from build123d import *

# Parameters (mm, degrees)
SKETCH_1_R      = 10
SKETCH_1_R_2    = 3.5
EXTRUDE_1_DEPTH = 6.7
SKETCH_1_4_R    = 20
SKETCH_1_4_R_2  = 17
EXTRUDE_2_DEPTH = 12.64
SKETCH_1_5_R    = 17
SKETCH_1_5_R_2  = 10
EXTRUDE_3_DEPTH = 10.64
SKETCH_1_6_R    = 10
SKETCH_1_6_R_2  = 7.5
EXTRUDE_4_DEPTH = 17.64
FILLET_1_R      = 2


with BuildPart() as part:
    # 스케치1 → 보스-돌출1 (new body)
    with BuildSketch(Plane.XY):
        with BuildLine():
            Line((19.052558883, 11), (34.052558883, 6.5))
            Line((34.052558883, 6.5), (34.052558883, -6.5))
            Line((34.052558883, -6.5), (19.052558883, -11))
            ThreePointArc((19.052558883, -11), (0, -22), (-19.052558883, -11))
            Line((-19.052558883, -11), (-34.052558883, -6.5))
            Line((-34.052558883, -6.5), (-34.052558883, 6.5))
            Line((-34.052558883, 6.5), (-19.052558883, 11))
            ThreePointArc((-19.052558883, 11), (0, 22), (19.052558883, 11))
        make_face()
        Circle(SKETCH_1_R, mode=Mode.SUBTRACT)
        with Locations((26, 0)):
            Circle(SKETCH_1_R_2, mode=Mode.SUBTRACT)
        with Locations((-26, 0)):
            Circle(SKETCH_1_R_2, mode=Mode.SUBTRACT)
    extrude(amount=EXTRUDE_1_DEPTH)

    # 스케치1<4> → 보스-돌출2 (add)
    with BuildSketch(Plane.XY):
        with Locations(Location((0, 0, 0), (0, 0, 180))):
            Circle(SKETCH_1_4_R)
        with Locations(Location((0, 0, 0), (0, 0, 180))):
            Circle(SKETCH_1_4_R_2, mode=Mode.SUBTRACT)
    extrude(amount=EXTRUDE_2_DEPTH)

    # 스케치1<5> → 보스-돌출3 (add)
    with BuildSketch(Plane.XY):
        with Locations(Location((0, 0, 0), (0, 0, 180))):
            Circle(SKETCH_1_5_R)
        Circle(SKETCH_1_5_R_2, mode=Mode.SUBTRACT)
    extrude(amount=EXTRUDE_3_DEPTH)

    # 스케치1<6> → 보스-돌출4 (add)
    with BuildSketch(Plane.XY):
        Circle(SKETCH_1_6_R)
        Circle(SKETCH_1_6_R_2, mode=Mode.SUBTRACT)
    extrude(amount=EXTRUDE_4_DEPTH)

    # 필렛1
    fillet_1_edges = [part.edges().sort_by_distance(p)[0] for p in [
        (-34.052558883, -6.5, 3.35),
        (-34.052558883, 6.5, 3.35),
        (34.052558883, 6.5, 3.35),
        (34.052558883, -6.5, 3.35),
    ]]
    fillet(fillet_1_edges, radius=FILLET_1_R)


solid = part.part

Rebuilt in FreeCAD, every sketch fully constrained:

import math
import FreeCAD as App
import Part
import Sketcher
from FreeCAD import Vector


def edges_at(feature, points):
    """Names of the edges that pass closest to the given points."""
    edges = feature.Shape.Edges
    near = lambda p: min(range(len(edges)), key=lambda i: edges[i].distToShape(Part.Vertex(*p))[0])
    return sorted({f"Edge{near(p) + 1}" for p in points})

doc = App.newDocument("Part")
params = doc.addObject("Spreadsheet::Sheet", "Params")
for row, (alias, value) in enumerate([
    ("sketch1_diameter", "7 mm"),
    ("sketch1_diameter2", "20 mm"),
    ("sketch1_radius", "22 mm"),
    ("sketch1_height", "13 mm"),
    ("pad1_length", "6.7 mm"),
    ("sketch2_diameter", "40 mm"),
    ("sketch2_diameter2", "34 mm"),
    ("pad2_length", "12.64 mm"),
    ("sketch3_diameter", "34 mm"),
    ("sketch3_diameter2", "20 mm"),
    ("pad3_length", "10.64 mm"),
    ("sketch4_diameter", "20 mm"),
    ("sketch4_diameter2", "15 mm"),
    ("pad4_length", "17.64 mm"),
    ("fillet_radius", "2 mm"),
], start=1):
    params.set(f"A{row}", alias)
    params.set(f"B{row}", "=" + value)
    params.setAlias(f"B{row}", alias)

body = doc.addObject("PartDesign::Body", "Body")

# Sketch on XY plane
sketch1 = body.newObject("Sketcher::SketchObject", "Sketch")
sketch1.AttachmentSupport = (doc.getObject("XY_Plane"), [""])
sketch1.MapMode = "FlatFace"
sketch1.addGeometry([
    Part.LineSegment(Vector(34.1, 6.5, 0), Vector(19.1, 11, 0)),  # 0
    Part.ArcOfCircle(Part.Circle(Vector(0, 0, 0), Vector(0, 0, 1), 22), math.radians(30), math.radians(150)),  # 1
    Part.LineSegment(Vector(-19.1, 11, 0), Vector(-34.1, 6.5, 0)),  # 2
    Part.LineSegment(Vector(-34.1, 6.5, 0), Vector(-34.1, -6.5, 0)),  # 3
    Part.LineSegment(Vector(-34.1, -6.5, 0), Vector(-19.1, -11, 0)),  # 4
    Part.ArcOfCircle(Part.Circle(Vector(0, 0, 0), Vector(0, 0, 1), 22), math.radians(-150), math.radians(-30)),  # 5
    Part.LineSegment(Vector(19.1, -11, 0), Vector(34.1, -6.5, 0)),  # 6
    Part.LineSegment(Vector(34.1, -6.5, 0), Vector(34.1, 6.5, 0)),  # 7
    Part.Circle(Vector(26, 0, 0), Vector(0, 0, 1), 3.5),  # 8
    Part.Circle(Vector(0, 0, 0), Vector(0, 0, 1), 10),  # 9
    Part.Circle(Vector(-26, 0, 0), Vector(0, 0, 1), 3.5),  # 10
], False)
sketch1.addConstraint([
    Sketcher.Constraint("Coincident", 0, 2, 1, 1),
    Sketcher.Constraint("Coincident", 1, 2, 2, 1),
    Sketcher.Constraint("Coincident", 2, 2, 3, 1),
    Sketcher.Constraint("Coincident", 3, 2, 4, 1),
    Sketcher.Constraint("Coincident", 4, 2, 5, 1),
    Sketcher.Constraint("Coincident", 5, 2, 6, 1),
    Sketcher.Constraint("Coincident", 6, 2, 7, 1),
    Sketcher.Constraint("Coincident", 7, 2, 0, 1),
    Sketcher.Constraint("Vertical", 3),
    Sketcher.Constraint("Vertical", 7),
    Sketcher.Constraint("Coincident", 1, 3, -1, 1),
    Sketcher.Constraint("Coincident", 5, 3, -1, 1),
    Sketcher.Constraint("Coincident", 9, 3, -1, 1),
    Sketcher.Constraint("Equal", 1, 5),
    Sketcher.Constraint("Equal", 8, 10),
    Sketcher.Constraint("Symmetric", 8, 3, 10, 3, -1, 1),
    Sketcher.Constraint("Symmetric", 2, 2, 6, 2, -1, 1),
    Sketcher.Constraint("PointOnObject", 8, 3, -1),
    Sketcher.Constraint("Parallel", 0, 4),
    Sketcher.Constraint("Parallel", 2, 6),
    Sketcher.Constraint("Horizontal", 0, 2, 1, 2),
    Sketcher.Constraint("Horizontal", 4, 2, 5, 2),
    Sketcher.Constraint("Horizontal", 3, 2, 6, 2),
    Sketcher.Constraint("Diameter", 8, 7.0),
    Sketcher.Constraint("Diameter", 9, 20.0),
    Sketcher.Constraint("Radius", 1, 22.0),
    Sketcher.Constraint("DistanceY", 3, 2, 3, 1, 13.0),
    Sketcher.Constraint("DistanceX", -1, 1, 8, 3, 26.0),
    Sketcher.Constraint("DistanceY", -1, 1, 0, 2, 11.0),
    Sketcher.Constraint("DistanceX", 2, 2, 1, 2, 15.0),
])
sketch1.setExpression("Constraints[23]", "Params.sketch1_diameter")
sketch1.setExpression("Constraints[24]", "Params.sketch1_diameter2")
sketch1.setExpression("Constraints[25]", "Params.sketch1_radius")
sketch1.setExpression("Constraints[26]", "Params.sketch1_height")
pad1 = body.newObject("PartDesign::Pad", "Pad")
pad1.Profile = sketch1
pad1.setExpression("Length", "Params.pad1_length")

# Sketch on XY plane
sketch2 = body.newObject("Sketcher::SketchObject", "Sketch001")
sketch2.AttachmentSupport = (doc.getObject("XY_Plane"), [""])
sketch2.MapMode = "FlatFace"
sketch2.addGeometry([
    Part.Circle(Vector(0, 0, 0), Vector(0, 0, 1), 20),
    Part.Circle(Vector(0, 0, 0), Vector(0, 0, 1), 17),
], False)
sketch2.addConstraint([
    Sketcher.Constraint("Coincident", 0, 3, -1, 1),
    Sketcher.Constraint("Coincident", 1, 3, -1, 1),
    Sketcher.Constraint("Diameter", 0, 40.0),
    Sketcher.Constraint("Diameter", 1, 34.0),
])
sketch2.setExpression("Constraints[2]", "Params.sketch2_diameter")
sketch2.setExpression("Constraints[3]", "Params.sketch2_diameter2")
pad2 = body.newObject("PartDesign::Pad", "Pad001")
pad2.Profile = sketch2
pad2.setExpression("Length", "Params.pad2_length")

# Sketch on XY plane
sketch3 = body.newObject("Sketcher::SketchObject", "Sketch002")
sketch3.AttachmentSupport = (doc.getObject("XY_Plane"), [""])
sketch3.MapMode = "FlatFace"
sketch3.addGeometry([
    Part.Circle(Vector(0, 0, 0), Vector(0, 0, 1), 17),
    Part.Circle(Vector(0, 0, 0), Vector(0, 0, 1), 10),
], False)
sketch3.addConstraint([
    Sketcher.Constraint("Coincident", 0, 3, -1, 1),
    Sketcher.Constraint("Coincident", 1, 3, -1, 1),
    Sketcher.Constraint("Diameter", 0, 34.0),
    Sketcher.Constraint("Diameter", 1, 20.0),
])
sketch3.setExpression("Constraints[2]", "Params.sketch3_diameter")
sketch3.setExpression("Constraints[3]", "Params.sketch3_diameter2")
pad3 = body.newObject("PartDesign::Pad", "Pad002")
pad3.Profile = sketch3
pad3.setExpression("Length", "Params.pad3_length")

# Sketch on XY plane
sketch4 = body.newObject("Sketcher::SketchObject", "Sketch003")
sketch4.AttachmentSupport = (doc.getObject("XY_Plane"), [""])
sketch4.MapMode = "FlatFace"
sketch4.addGeometry([
    Part.Circle(Vector(0, 0, 0), Vector(0, 0, 1), 10),
    Part.Circle(Vector(0, 0, 0), Vector(0, 0, 1), 8),
], False)
sketch4.addConstraint([
    Sketcher.Constraint("Coincident", 0, 3, -1, 1),
    Sketcher.Constraint("Coincident", 1, 3, -1, 1),
    Sketcher.Constraint("Diameter", 0, 20.0),
    Sketcher.Constraint("Diameter", 1, 15.0),
])
sketch4.setExpression("Constraints[2]", "Params.sketch4_diameter")
sketch4.setExpression("Constraints[3]", "Params.sketch4_diameter2")
pad4 = body.newObject("PartDesign::Pad", "Pad003")
pad4.Profile = sketch4
pad4.setExpression("Length", "Params.pad4_length")
doc.recompute()

fillet = body.newObject("PartDesign::Fillet", "Fillet")
fillet.Base = (pad4, edges_at(pad4, [
    (-34.053, -6.5, 3.35),
    (-34.053, 6.5, 3.35),
    (34.053, 6.5, 3.35),
    (34.053, -6.5, 3.35),
]))
fillet.setExpression("Radius", "Params.fillet_radius")

doc.recompute()
